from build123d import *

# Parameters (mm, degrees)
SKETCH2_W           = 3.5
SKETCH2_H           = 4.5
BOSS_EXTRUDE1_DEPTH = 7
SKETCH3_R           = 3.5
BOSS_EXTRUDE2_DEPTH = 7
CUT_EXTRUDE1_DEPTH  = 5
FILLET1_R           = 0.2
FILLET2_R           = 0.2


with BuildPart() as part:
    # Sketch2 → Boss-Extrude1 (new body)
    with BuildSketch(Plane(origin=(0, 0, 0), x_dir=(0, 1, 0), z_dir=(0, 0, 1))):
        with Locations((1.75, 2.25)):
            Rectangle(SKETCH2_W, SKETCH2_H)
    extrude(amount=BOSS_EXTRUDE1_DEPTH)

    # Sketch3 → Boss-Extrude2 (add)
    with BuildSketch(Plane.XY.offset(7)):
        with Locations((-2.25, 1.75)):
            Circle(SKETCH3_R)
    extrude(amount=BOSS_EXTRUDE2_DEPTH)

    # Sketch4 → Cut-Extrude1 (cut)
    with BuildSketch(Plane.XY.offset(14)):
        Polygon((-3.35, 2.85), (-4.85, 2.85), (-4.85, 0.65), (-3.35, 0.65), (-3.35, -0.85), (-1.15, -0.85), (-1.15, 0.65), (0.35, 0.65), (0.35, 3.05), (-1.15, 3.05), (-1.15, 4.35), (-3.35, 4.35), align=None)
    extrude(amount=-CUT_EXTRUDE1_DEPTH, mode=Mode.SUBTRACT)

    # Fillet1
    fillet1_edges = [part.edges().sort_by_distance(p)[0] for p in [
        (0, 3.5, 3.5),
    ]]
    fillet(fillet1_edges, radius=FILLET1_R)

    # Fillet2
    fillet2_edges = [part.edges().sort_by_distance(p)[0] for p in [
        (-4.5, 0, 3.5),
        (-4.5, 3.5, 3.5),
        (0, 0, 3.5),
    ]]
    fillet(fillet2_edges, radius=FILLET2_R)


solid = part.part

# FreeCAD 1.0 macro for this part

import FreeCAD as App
import Part
import Sketcher
from FreeCAD import Vector
Q = App.Units.Quantity


def edges_at(feature, points):
    """Names of the edges that pass closest to the given points."""
    edges = feature.Shape.Edges
    near = lambda p: min(range(len(edges)), key=lambda i: edges[i].distToShape(Part.Vertex(*p))[0])
    return sorted({f"Edge{near(p) + 1}" for p in points})


def add_polygon(sketch, points):
    """Adds a closed chain of lines whose ends are joined by coincident constraints."""
    first, n = sketch.GeometryCount, len(points)
    for a, b in zip(points, points[1:] + points[:1]):
        sketch.addGeometry(Part.LineSegment(App.Vector(*a, 0), App.Vector(*b, 0)), False)
    for i in range(n):
        sketch.addConstraint(Sketcher.Constraint("Coincident", first + i, 2, first + (i + 1) % n, 1))

doc = App.newDocument("Part")
params = doc.addObject("Spreadsheet::Sheet", "Params")
for row, (alias, value) in enumerate([
    ("sketch1_width", "4.5 mm"),
    ("sketch1_height", "3.5 mm"),
    ("pad1_length", "7 mm"),
    ("sketch2_diameter", "7 mm"),
    ("pad2_length", "7 mm"),
    ("sketch3_width", "1.5 mm"),
    ("sketch3_width2", "2.2 mm"),
    ("sketch3_height", "2.4 mm"),
    ("pocket1_length", "5 mm"),
    ("fillet_radius", "0.2 mm"),
    ("fillet2_radius", "0.2 mm"),
], start=1):
    params.set(f"A{row}", alias)
    params.set(f"B{row}", "=" + value)
    params.setAlias(f"B{row}", alias)

body = doc.addObject("PartDesign::Body", "Body")

# Sketch on XY plane
sketch1 = body.newObject("Sketcher::SketchObject", "Sketch")
sketch1.AttachmentSupport = (doc.getObject("XY_Plane"), [""])
sketch1.MapMode = "FlatFace"
add_polygon(sketch1, [(-4.5, 0), (0, 0), (0, 3.5), (-4.5, 3.5)])  # lines 0-3
sketch1.addConstraint([
    Sketcher.Constraint("Horizontal", 0),
    Sketcher.Constraint("Vertical", 1),
    Sketcher.Constraint("Horizontal", 2),
    Sketcher.Constraint("Vertical", 3),
    Sketcher.Constraint("Coincident", 0, 2, -1, 1),
    Sketcher.Constraint("DistanceX", 0, 1, 0, 2, Q("4.5 mm")),
    Sketcher.Constraint("DistanceY", 1, 1, 1, 2, Q("3.5 mm")),
])
sketch1.setExpression("Constraints[9]", "Params.sketch1_width")
sketch1.setExpression("Constraints[10]", "Params.sketch1_height")
pad1 = body.newObject("PartDesign::Pad", "Pad")
pad1.Profile = sketch1
pad1.setExpression("Length", "Params.pad1_length")

# Sketch on XY plane
sketch2 = body.newObject("Sketcher::SketchObject", "Sketch001")
sketch2.AttachmentSupport = (doc.getObject("XY_Plane"), [""])
sketch2.MapMode = "FlatFace"
sketch2.AttachmentOffset = App.Placement(Vector(0, 0, 7), App.Rotation())
sketch2.addGeometry(Part.Circle(Vector(-2.25, 1.75, 0), Vector(0, 0, 1), 3.5), False)
sketch2.addConstraint([
    Sketcher.Constraint("Diameter", 0, Q("7 mm")),
    Sketcher.Constraint("DistanceX", 0, 3, -1, 1, Q("2.25 mm")),
    Sketcher.Constraint("DistanceY", -1, 1, 0, 3, Q("1.75 mm")),
])
sketch2.setExpression("Constraints[0]", "Params.sketch2_diameter")
pad2 = body.newObject("PartDesign::Pad", "Pad001")
pad2.Profile = sketch2
pad2.setExpression("Length", "Params.pad2_length")

# Sketch on XY plane
sketch3 = body.newObject("Sketcher::SketchObject", "Sketch002")
sketch3.AttachmentSupport = (doc.getObject("XY_Plane"), [""])
sketch3.MapMode = "FlatFace"
sketch3.AttachmentOffset = App.Placement(Vector(0, 0, 14), App.Rotation())
add_polygon(sketch3, [(-3.35, 2.85), (-4.85, 2.85), (-4.85, 0.65), (-3.35, 0.65), (-3.35, -0.85), (-1.15, -0.85), (-1.15, 0.65), (0.35, 0.65), (0.35, 3.05), (-1.15, 3.05), (-1.15, 4.35), (-3.35, 4.35)])  # lines 0-11
sketch3.addConstraint([
    Sketcher.Constraint("Horizontal", 0),
    Sketcher.Constraint("Vertical", 1),
    Sketcher.Constraint("Horizontal", 2),
    Sketcher.Constraint("Vertical", 3),
    Sketcher.Constraint("Horizontal", 4),
    Sketcher.Constraint("Vertical", 5),
    Sketcher.Constraint("Horizontal", 6),
    Sketcher.Constraint("Vertical", 7),
    Sketcher.Constraint("Horizontal", 8),
    Sketcher.Constraint("Vertical", 9),
    Sketcher.Constraint("Horizontal", 10),
    Sketcher.Constraint("Vertical", 11),
    Sketcher.Constraint("Horizontal", 2, 2, 5, 2),
    Sketcher.Constraint("Vertical", 5, 2, 8, 2),
    Sketcher.Constraint("Vertical", 3, 2, 10, 2),
    Sketcher.Constraint("Equal", 2, 6),
    Sketcher.Constraint("Equal", 10, 1),
    Sketcher.Constraint("Equal", 8, 3),
    Sketcher.Constraint("Equal", 5, 11),
    Sketcher.Constraint("DistanceX", 0, 2, 0, 1, Q("1.5 mm")),
    Sketcher.Constraint("DistanceX", 4, 1, 4, 2, Q("2.2 mm")),
    Sketcher.Constraint("DistanceY", 7, 1, 7, 2, Q("2.4 mm")),
    Sketcher.Constraint("DistanceX", 0, 2, -1, 1, Q("4.85 mm")),
    Sketcher.Constraint("DistanceY", -1, 1, 0, 2, Q("2.85 mm")),
])
sketch3.setExpression("Constraints[31]", "Params.sketch3_width")
sketch3.setExpression("Constraints[32]", "Params.sketch3_width2")
sketch3.setExpression("Constraints[33]", "Params.sketch3_height")
pocket1 = body.newObject("PartDesign::Pocket", "Pocket")
pocket1.Profile = sketch3
pocket1.setExpression("Length", "Params.pocket1_length")
doc.recompute()

fillet = body.newObject("PartDesign::Fillet", "Fillet")
fillet.Base = (pocket1, edges_at(pocket1, [(0, 3.5, 3.5)]))
fillet.setExpression("Radius", "Params.fillet_radius")
doc.recompute()

fillet2 = body.newObject("PartDesign::Fillet", "Fillet001")
fillet2.Base = (fillet, edges_at(fillet, [(-4.5, 0, 3.5), (-4.5, 3.5, 3.5), (0, 0, 3.5)]))
fillet2.setExpression("Radius", "Params.fillet2_radius")

doc.recompute()
